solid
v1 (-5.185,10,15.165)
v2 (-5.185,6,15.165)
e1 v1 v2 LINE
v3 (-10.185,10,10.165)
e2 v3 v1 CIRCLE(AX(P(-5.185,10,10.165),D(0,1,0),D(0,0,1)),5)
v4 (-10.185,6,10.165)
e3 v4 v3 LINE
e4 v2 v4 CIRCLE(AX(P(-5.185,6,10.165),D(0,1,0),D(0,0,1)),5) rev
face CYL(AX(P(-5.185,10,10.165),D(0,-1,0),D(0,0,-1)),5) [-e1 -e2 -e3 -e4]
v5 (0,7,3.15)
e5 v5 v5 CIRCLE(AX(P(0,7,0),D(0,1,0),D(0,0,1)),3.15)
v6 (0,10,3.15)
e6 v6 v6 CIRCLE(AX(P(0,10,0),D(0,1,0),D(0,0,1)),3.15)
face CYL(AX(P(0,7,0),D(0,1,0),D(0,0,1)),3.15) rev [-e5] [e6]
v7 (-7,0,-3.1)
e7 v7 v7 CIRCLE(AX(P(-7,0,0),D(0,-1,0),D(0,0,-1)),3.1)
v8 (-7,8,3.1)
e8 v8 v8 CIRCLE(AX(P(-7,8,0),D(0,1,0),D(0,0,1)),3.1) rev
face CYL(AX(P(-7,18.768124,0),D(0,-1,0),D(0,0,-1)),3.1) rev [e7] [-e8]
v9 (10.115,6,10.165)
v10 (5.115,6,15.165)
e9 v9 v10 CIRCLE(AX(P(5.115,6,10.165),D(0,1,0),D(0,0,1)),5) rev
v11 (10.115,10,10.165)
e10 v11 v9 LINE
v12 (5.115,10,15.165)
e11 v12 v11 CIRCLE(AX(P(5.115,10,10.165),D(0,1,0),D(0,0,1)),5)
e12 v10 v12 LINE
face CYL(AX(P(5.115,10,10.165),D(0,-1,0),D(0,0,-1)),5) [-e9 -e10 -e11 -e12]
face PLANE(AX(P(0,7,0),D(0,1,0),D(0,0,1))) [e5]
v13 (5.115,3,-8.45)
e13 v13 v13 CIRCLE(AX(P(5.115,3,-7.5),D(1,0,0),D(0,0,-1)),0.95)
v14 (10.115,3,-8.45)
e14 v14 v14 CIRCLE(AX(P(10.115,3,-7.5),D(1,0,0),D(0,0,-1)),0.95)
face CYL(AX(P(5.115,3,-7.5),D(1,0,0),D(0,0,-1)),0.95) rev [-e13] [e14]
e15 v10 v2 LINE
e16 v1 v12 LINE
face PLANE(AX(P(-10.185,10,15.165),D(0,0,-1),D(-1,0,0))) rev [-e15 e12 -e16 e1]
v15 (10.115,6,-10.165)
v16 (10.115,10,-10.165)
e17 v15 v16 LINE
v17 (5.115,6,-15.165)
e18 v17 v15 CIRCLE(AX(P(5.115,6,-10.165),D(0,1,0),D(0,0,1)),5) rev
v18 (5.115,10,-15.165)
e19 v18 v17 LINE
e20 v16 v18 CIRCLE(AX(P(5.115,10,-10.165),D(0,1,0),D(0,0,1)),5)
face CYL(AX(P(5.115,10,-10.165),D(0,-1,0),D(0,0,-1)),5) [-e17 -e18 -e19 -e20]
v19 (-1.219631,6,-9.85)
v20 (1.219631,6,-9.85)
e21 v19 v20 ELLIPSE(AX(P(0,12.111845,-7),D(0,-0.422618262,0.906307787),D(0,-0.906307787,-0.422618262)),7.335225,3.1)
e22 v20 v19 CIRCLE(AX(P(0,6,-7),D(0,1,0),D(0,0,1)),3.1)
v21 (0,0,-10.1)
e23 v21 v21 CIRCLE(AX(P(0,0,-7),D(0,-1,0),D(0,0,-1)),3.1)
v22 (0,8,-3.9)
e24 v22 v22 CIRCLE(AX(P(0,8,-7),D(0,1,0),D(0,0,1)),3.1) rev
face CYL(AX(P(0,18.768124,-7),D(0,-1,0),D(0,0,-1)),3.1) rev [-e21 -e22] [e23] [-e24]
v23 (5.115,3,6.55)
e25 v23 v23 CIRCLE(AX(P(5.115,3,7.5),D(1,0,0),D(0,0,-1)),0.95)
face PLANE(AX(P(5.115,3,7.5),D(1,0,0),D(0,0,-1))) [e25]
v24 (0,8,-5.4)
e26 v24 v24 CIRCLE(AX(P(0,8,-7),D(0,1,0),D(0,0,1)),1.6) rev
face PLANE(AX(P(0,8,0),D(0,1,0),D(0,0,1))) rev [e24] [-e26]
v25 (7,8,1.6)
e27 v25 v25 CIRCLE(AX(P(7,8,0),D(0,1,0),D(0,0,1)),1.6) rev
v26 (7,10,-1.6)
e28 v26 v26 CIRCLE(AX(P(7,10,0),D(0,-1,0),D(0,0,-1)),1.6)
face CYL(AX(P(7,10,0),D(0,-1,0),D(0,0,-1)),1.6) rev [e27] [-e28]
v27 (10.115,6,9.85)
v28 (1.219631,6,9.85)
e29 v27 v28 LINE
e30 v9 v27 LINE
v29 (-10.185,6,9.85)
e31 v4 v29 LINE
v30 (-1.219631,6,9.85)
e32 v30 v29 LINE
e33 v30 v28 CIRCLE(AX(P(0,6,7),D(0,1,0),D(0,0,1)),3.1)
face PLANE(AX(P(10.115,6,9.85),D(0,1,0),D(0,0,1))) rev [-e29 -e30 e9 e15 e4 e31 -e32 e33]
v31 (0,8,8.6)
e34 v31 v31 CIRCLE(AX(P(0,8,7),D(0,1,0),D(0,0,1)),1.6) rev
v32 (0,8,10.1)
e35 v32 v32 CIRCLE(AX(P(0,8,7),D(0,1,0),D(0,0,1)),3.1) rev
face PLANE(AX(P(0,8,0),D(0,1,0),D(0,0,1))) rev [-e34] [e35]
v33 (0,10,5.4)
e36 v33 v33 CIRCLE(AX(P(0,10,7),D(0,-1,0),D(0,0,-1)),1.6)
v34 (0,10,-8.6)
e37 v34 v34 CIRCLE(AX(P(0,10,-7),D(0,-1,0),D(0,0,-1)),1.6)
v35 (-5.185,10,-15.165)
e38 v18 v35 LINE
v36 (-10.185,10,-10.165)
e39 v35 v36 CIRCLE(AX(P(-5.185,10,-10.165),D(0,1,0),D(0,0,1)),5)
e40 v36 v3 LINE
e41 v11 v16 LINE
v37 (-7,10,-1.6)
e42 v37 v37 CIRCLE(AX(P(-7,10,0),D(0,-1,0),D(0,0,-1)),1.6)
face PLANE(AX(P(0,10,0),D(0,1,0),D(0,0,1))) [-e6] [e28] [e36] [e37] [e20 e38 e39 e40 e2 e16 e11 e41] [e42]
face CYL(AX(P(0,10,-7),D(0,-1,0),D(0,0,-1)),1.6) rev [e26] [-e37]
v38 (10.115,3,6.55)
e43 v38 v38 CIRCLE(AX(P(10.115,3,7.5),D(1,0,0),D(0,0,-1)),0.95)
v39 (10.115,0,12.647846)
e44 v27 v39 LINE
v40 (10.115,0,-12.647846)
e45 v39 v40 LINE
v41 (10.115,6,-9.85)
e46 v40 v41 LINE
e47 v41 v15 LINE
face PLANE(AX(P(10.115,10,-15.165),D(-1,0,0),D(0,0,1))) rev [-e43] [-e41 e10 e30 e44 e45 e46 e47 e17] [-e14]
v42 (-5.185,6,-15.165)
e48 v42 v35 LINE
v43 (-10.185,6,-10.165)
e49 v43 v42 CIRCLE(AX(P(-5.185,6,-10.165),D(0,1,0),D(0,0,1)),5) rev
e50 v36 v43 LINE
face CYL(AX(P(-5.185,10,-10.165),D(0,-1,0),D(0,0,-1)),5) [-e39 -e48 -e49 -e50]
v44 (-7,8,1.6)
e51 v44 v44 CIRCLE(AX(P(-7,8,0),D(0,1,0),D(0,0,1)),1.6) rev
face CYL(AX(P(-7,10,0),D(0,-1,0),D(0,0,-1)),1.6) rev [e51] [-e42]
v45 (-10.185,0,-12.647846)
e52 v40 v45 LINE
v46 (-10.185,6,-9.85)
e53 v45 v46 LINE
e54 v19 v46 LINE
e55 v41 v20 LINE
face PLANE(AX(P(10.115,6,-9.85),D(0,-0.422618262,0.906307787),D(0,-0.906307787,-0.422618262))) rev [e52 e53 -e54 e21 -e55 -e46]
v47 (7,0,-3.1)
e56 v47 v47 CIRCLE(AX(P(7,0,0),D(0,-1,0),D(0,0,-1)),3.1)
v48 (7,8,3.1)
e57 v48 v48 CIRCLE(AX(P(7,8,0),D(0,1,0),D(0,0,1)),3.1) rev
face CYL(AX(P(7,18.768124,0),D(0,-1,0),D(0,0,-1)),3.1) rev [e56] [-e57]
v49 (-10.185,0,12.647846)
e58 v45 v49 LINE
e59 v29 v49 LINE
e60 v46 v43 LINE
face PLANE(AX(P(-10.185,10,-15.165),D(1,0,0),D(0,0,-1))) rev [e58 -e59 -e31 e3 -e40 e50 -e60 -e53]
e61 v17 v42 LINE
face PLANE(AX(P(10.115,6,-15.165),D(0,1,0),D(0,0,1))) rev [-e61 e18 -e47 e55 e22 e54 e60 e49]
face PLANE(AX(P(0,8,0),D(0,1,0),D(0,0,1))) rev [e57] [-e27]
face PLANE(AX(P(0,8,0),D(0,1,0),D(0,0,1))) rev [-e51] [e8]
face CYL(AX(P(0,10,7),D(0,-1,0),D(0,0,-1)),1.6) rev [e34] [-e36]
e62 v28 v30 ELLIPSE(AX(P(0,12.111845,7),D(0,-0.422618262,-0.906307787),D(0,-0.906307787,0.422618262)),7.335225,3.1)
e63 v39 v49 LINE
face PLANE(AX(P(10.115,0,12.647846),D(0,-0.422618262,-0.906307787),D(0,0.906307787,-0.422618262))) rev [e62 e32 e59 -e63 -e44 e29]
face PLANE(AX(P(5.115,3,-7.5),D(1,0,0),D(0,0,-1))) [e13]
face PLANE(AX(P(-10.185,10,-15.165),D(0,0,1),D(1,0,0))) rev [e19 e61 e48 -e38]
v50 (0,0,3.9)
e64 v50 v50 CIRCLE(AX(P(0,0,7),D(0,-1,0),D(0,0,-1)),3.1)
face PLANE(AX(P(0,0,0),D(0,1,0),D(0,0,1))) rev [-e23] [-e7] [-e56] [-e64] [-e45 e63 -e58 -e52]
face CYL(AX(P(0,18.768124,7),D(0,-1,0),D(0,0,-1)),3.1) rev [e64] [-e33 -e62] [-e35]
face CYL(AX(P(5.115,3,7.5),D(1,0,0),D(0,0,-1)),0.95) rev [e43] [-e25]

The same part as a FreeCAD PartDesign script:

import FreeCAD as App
import Part
import Sketcher

V = App.Vector
Q = App.Units.Quantity


def edges_at(feature, points):
    """Names of the edges that pass closest to the given points."""
    edges = feature.Shape.Edges
    near = lambda p: min(range(len(edges)), key=lambda i: edges[i].distToShape(Part.Vertex(*p))[0])
    return sorted({f"Edge{near(p) + 1}" for p in points})

doc = App.newDocument("Part")
body = doc.addObject("PartDesign::Body", "Body")

sketch1 = body.newObject("Sketcher::SketchObject", "Sketch")
sketch1.AttachmentSupport = (doc.getObject("XZ_Plane"), [""])
sketch1.MapMode = "FlatFace"
sketch1.addGeometry([
    Part.LineSegment(V(-10.185, -15.165, 0), V(-10.185, 15.165, 0)),
    Part.LineSegment(V(-10.185, 15.165, 0), V(10.115, 15.165, 0)),
    Part.LineSegment(V(10.115, 15.165, 0), V(10.115, -15.165, 0)),
    Part.LineSegment(V(10.115, -15.165, 0), V(-10.185, -15.165, 0)),
], False)
sketch1.addConstraint([
    Sketcher.Constraint("Coincident", 0, 2, 1, 1),
    Sketcher.Constraint("Coincident", 1, 2, 2, 1),
    Sketcher.Constraint("Coincident", 2, 2, 3, 1),
    Sketcher.Constraint("Coincident", 3, 2, 0, 1),
    Sketcher.Constraint("Vertical", 0),
    Sketcher.Constraint("Horizontal", 1),
    Sketcher.Constraint("Vertical", 2),
    Sketcher.Constraint("Horizontal", 3),
    Sketcher.Constraint("DistanceX", 1, 1, 1, 2, 20.3),
    Sketcher.Constraint("DistanceY", 0, 1, 0, 2, 30.33),
    Sketcher.Constraint("DistanceX", 0, 2, -1, 1, 10.185),
    Sketcher.Constraint("DistanceY", -1, 1, 0, 2, 15.165),
])
pad1 = body.newObject("PartDesign::Pad", "Pad")
pad1.Profile = sketch1
pad1.Length = 10
pad1.Reversed = True

sketch2 = body.newObject("Sketcher::SketchObject", "Sketch001")
sketch2.AttachmentSupport = (doc.getObject("YZ_Plane"), [""])
sketch2.MapMode = "FlatFace"
sketch2.AttachmentOffset = App.Placement(V(0, 0, -10.185), App.Rotation())
sketch2.addGeometry([
    Part.LineSegment(V(6, -9.85, 0), V(6, -15.165, 0)),
    Part.LineSegment(V(6, -15.165, 0), V(0, -15.165, 0)),
    Part.LineSegment(V(0, -15.165, 0), V(0, -12.647846, 0)),
    Part.LineSegment(V(0, -12.647846, 0), V(6, -9.85, 0)),
    Part.LineSegment(V(6, 9.85, 0), V(0, 12.647846, 0)),
    Part.LineSegment(V(0, 12.647846, 0), V(0, 15.165, 0)),
    Part.LineSegment(V(0, 15.165, 0), V(6, 15.165, 0)),
    Part.LineSegment(V(6, 15.165, 0), V(6, 9.85, 0)),
], False)
sketch2.addConstraint([
    Sketcher.Constraint("Coincident", 0, 2, 1, 1),
    Sketcher.Constraint("Coincident", 1, 2, 2, 1),
    Sketcher.Constraint("Coincident", 2, 2, 3, 1),
    Sketcher.Constraint("Coincident", 3, 2, 0, 1),
    Sketcher.Constraint("Coincident", 4, 2, 5, 1),
    Sketcher.Constraint("Coincident", 5, 2, 6, 1),
    Sketcher.Constraint("Coincident", 6, 2, 7, 1),
    Sketcher.Constraint("Coincident", 7, 2, 4, 1),
    Sketcher.Constraint("Vertical", 0),
    Sketcher.Constraint("Horizontal", 1),
    Sketcher.Constraint("Vertical", 2),
    Sketcher.Constraint("Vertical", 5),
    Sketcher.Constraint("Horizontal", 6),
    Sketcher.Constraint("Vertical", 7),
    Sketcher.Constraint("Symmetric", 2, 2, 4, 2, -1, 1),
    Sketcher.Constraint("Symmetric", 1, 2, 5, 2, -1),
    Sketcher.Constraint("Symmetric", 3, 2, 7, 2, -1),
    Sketcher.Constraint("DistanceX", 1, 2, 1, 1, 6.0),
    Sketcher.Constraint("Angle", 3, Q("25 deg")),
    Sketcher.Constraint("DistanceY", 3, 2, 7, 2, 19.7),
    Sketcher.Constraint("DistanceY", 0, 2, 0, 1, 5.315),
])
pocket1 = body.newObject("PartDesign::Pocket", "Pocket")
pocket1.Profile = sketch2
pocket1.Type = "ThroughAll"
pocket1.Reversed = True

sketch3 = body.newObject("Sketcher::SketchObject", "Sketch002")
sketch3.AttachmentSupport = (doc.getObject("XZ_Plane"), [""])
sketch3.MapMode = "FlatFace"
sketch3.addGeometry([
    Part.Circle(V(0, 7, 0), V(0, 0, 1), 1.6),
    Part.Circle(V(7, 0, 0), V(0, 0, 1), 1.6),
    Part.Circle(V(0, -7, 0), V(0, 0, 1), 1.6),
    Part.Circle(V(-7, 0, 0), V(0, 0, 1), 1.6),
], False)
sketch3.addConstraint([
    Sketcher.Constraint("Equal", 0, 1),
    Sketcher.Constraint("Equal", 1, 2),
    Sketcher.Constraint("Equal", 2, 3),
    Sketcher.Constraint("Symmetric", 0, 3, 2, 3, -1, 1),
    Sketcher.Constraint("Symmetric", 1, 3, 3, 3, -1, 1),
    Sketcher.Constraint("PointOnObject", 0, 3, -2),
    Sketcher.Constraint("PointOnObject", 1, 3, -1),
    Sketcher.Constraint("Diameter", 0, 3.2),
    Sketcher.Constraint("DistanceY", -1, 1, 0, 3, 7.0),
    Sketcher.Constraint("DistanceX", -1, 1, 1, 3, 7.0),
])
pocket2 = body.newObject("PartDesign::Pocket", "Pocket001")
pocket2.Profile = sketch3
pocket2.Type = "ThroughAll"

sketch4 = body.newObject("Sketcher::SketchObject", "Sketch003")
sketch4.AttachmentSupport = (doc.getObject("XZ_Plane"), [""])
sketch4.MapMode = "FlatFace"
sketch4.addGeometry([
    Part.Circle(V(0, 7, 0), V(0, 0, 1), 3.1),
    Part.Circle(V(7, 0, 0), V(0, 0, 1), 3.1),
    Part.Circle(V(0, -7, 0), V(0, 0, 1), 3.1),
    Part.Circle(V(-7, 0, 0), V(0, 0, 1), 3.1),
], False)
sketch4.addConstraint([
    Sketcher.Constraint("Equal", 0, 1),
    Sketcher.Constraint("Equal", 1, 2),
    Sketcher.Constraint("Equal", 2, 3),
    Sketcher.Constraint("Symmetric", 0, 3, 2, 3, -1, 1),
    Sketcher.Constraint("Symmetric", 1, 3, 3, 3, -1, 1),
    Sketcher.Constraint("PointOnObject", 0, 3, -2),
    Sketcher.Constraint("PointOnObject", 1, 3, -1),
    Sketcher.Constraint("Diameter", 0, 6.2),
    Sketcher.Constraint("DistanceY", -1, 1, 0, 3, 7.0),
    Sketcher.Constraint("DistanceX", -1, 1, 1, 3, 7.0),
])
pocket3 = body.newObject("PartDesign::Pocket", "Pocket002")
pocket3.Profile = sketch4
pocket3.Length = 8

sketch5 = body.newObject("Sketcher::SketchObject", "Sketch004")
sketch5.AttachmentSupport = (doc.getObject("YZ_Plane"), [""])
sketch5.MapMode = "FlatFace"
sketch5.AttachmentOffset = App.Placement(V(0, 0, 10.115), App.Rotation())
sketch5.addGeometry([
    Part.Circle(V(3, 7.5, 0), V(0, 0, 1), 0.95),
    Part.Circle(V(3, -7.5, 0), V(0, 0, 1), 0.95),
], False)
sketch5.addConstraint([
    Sketcher.Constraint("Equal", 0, 1),
    Sketcher.Constraint("Symmetric", 0, 3, 1, 3, -1),
    Sketcher.Constraint("Diameter", 0, 1.9),
    Sketcher.Constraint("DistanceX", -1, 1, 0, 3, 3.0),
    Sketcher.Constraint("DistanceY", 1, 3, 0, 3, 15.0),
])
pocket4 = body.newObject("PartDesign::Pocket", "Pocket003")
pocket4.Profile = sketch5
pocket4.Length = 5

sketch6 = body.newObject("Sketcher::SketchObject", "Sketch005")
sketch6.AttachmentSupport = (doc.getObject("XZ_Plane"), [""])
sketch6.MapMode = "FlatFace"
sketch6.AttachmentOffset = App.Placement(V(0, 0, -10), App.Rotation())
sketch6.addGeometry(Part.Circle(V(0, 0, 0), V(0, 0, 1), 3.15), False)
sketch6.addConstraint([
    Sketcher.Constraint("Coincident", 0, 3, -1, 1),
    Sketcher.Constraint("Diameter", 0, 6.3),
])
pocket5 = body.newObject("PartDesign::Pocket", "Pocket004")
pocket5.Profile = sketch6
pocket5.Length = 3
pocket5.Reversed = True
doc.recompute()

fillet = body.newObject("PartDesign::Fillet", "Fillet")
fillet.Base = (pocket5, edges_at(pocket5, [
    (-10.185, 8, -15.165),
    (10.115, 8, -15.165),
    (10.115, 8, 15.165),
    (-10.185, 8, 15.165),
]))
fillet.Radius = 5

doc.recompute()
